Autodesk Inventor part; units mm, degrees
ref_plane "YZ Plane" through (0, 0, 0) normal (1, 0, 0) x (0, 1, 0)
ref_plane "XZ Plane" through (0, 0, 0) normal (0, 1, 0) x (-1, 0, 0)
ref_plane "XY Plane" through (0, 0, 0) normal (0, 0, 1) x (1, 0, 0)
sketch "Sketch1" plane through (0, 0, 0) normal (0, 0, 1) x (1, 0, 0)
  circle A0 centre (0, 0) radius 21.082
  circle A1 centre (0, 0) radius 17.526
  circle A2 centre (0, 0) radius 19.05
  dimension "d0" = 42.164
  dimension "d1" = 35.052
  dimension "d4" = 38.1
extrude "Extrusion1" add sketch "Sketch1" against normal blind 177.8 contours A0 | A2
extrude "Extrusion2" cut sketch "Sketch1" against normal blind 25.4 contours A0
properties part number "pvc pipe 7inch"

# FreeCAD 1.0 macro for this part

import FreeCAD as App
import Part
import Sketcher
Q = App.Units.Quantity

doc = App.newDocument("Part")
params = doc.addObject("Spreadsheet::Sheet", "Params")
for row, (alias, value) in enumerate([
    ("sketch1_diameter", "1.66 in"),
    ("sketch1_diameter2", "1.38 in"),
    ("pad1_length", "7 in"),
    ("sketch2_diameter", "1.5 in"),
    ("sketch2_diameter2", "1.66 in"),
    ("pocket1_length", "1 in"),
], start=1):
    params.set(f"A{row}", alias)
    params.set(f"B{row}", "=" + value)
    params.setAlias(f"B{row}", alias)

body = doc.addObject("PartDesign::Body", "Body")

# Sketch on XY plane
sketch1 = body.newObject("Sketcher::SketchObject", "Sketch")
sketch1.AttachmentSupport = (doc.getObject("XY_Plane"), [""])
sketch1.MapMode = "FlatFace"
sketch1.addGeometry(Part.Circle(App.Vector(0, 0, 0), App.Vector(0, 0, 1), 21), False)
sketch1.addGeometry(Part.Circle(App.Vector(0, 0, 0), App.Vector(0, 0, 1), 18), False)
sketch1.addConstraint(Sketcher.Constraint("Coincident", 0, 3, -1, 1))
sketch1.addConstraint(Sketcher.Constraint("Coincident", 1, 3, -1, 1))
sketch1.addConstraint(Sketcher.Constraint("Diameter", 0, Q("1.66 in")))
sketch1.addConstraint(Sketcher.Constraint("Diameter", 1, Q("1.38 in")))
sketch1.setExpression("Constraints[2]", "Params.sketch1_diameter")
sketch1.setExpression("Constraints[3]", "Params.sketch1_diameter2")
pad1 = body.newObject("PartDesign::Pad", "Pad")
pad1.Profile = sketch1
pad1.setExpression("Length", "Params.pad1_length")
pad1.Reversed = True

# Sketch on XY plane
sketch2 = body.newObject("Sketcher::SketchObject", "Sketch001")
sketch2.AttachmentSupport = (doc.getObject("XY_Plane"), [""])
sketch2.MapMode = "FlatFace"
sketch2.addGeometry(Part.Circle(App.Vector(0, 0, 0), App.Vector(0, 0, 1), 21), False)
sketch2.addGeometry(Part.Circle(App.Vector(0, 0, 0), App.Vector(0, 0, 1), 19), False)
sketch2.addConstraint(Sketcher.Constraint("Coincident", 0, 3, -1, 1))
sketch2.addConstraint(Sketcher.Constraint("Coincident", 1, 3, -1, 1))
sketch2.addConstraint(Sketcher.Constraint("Diameter", 1, Q("1.5 in")))
sketch2.addConstraint(Sketcher.Constraint("Diameter", 0, Q("1.66 in")))
sketch2.setExpression("Constraints[2]", "Params.sketch2_diameter")
sketch2.setExpression("Constraints[3]", "Params.sketch2_diameter2")
pocket1 = body.newObject("PartDesign::Pocket", "Pocket")
pocket1.Profile = sketch2
pocket1.setExpression("Length", "Params.pocket1_length")

doc.recompute()
